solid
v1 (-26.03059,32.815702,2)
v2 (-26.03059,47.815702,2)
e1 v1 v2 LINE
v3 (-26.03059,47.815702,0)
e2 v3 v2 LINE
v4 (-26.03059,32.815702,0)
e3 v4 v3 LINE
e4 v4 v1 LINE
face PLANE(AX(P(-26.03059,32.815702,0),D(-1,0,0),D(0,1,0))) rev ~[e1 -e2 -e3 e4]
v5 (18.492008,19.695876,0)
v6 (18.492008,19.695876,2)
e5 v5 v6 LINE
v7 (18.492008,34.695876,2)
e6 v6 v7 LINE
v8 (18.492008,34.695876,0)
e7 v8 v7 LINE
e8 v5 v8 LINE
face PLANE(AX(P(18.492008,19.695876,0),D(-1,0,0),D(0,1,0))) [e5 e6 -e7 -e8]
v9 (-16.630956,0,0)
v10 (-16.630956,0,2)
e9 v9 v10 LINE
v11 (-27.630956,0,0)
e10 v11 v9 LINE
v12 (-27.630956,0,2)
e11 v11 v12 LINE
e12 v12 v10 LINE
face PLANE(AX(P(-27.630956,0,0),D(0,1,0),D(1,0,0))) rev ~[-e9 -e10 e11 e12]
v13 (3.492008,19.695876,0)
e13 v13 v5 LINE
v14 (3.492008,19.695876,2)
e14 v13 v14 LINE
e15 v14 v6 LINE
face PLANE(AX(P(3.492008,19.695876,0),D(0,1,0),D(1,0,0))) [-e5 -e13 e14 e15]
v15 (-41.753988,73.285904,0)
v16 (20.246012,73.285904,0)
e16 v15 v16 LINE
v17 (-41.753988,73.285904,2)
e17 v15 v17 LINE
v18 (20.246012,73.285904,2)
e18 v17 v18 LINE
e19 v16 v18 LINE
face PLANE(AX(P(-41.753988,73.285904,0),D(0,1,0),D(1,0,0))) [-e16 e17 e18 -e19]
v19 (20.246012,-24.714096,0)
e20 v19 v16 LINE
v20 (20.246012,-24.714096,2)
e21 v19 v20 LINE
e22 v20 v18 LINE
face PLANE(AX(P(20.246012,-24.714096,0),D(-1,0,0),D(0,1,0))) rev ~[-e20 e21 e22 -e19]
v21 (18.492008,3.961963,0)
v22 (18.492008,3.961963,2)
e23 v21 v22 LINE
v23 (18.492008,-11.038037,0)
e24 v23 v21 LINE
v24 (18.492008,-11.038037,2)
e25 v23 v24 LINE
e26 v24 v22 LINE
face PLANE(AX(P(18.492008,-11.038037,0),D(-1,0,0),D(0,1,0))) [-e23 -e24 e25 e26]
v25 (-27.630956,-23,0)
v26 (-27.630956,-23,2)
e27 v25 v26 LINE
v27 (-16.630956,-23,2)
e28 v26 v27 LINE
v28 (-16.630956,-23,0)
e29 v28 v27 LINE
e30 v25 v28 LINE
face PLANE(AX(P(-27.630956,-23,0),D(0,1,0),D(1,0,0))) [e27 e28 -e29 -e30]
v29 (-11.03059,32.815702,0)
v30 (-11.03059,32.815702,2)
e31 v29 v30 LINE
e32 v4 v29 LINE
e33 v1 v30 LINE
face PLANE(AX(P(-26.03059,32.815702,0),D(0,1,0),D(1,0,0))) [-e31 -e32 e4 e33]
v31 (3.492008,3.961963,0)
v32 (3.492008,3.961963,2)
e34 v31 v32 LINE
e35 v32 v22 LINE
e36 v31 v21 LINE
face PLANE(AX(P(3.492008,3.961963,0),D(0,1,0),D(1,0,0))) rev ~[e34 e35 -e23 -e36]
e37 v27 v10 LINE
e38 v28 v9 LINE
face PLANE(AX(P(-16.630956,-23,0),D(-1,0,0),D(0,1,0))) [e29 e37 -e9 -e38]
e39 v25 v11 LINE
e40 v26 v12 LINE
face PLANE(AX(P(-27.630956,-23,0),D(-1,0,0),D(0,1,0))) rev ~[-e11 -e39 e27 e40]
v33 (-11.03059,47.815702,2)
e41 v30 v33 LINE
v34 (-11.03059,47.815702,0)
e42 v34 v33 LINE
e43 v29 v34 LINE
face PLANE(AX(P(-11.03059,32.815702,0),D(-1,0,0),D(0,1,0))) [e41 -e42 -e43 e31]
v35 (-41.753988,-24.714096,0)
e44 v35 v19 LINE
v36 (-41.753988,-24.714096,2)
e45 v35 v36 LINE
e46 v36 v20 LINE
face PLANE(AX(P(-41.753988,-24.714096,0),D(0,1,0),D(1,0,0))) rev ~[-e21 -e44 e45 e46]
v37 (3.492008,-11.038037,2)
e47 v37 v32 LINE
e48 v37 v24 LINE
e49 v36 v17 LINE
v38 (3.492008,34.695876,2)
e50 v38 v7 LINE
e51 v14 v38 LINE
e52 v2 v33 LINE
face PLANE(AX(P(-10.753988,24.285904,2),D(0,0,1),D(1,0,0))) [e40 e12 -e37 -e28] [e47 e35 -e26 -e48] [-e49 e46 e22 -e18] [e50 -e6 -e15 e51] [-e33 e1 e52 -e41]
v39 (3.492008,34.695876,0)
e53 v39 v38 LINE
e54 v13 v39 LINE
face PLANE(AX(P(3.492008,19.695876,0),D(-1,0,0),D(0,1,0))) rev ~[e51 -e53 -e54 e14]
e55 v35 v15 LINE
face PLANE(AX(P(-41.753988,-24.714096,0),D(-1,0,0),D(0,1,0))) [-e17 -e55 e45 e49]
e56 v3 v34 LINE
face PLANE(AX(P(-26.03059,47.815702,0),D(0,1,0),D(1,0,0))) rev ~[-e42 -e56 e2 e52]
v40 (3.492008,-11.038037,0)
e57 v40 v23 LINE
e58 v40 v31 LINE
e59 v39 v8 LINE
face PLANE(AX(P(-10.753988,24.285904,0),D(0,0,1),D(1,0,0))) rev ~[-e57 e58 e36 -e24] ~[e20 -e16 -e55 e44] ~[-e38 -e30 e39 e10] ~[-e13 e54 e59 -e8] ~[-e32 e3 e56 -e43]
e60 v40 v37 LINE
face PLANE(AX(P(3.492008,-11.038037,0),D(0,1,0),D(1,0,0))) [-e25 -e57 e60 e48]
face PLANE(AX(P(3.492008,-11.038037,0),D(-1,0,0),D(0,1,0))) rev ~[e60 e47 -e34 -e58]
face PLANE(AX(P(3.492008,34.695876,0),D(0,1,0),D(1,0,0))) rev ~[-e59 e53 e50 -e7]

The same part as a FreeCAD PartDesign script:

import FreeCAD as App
import Part
import Sketcher

V = App.Vector

doc = App.newDocument("Part")
body = doc.addObject("PartDesign::Body", "Body")

sketch1 = body.newObject("Sketcher::SketchObject", "Sketch")
sketch1.AttachmentSupport = (doc.getObject("XY_Plane"), [""])
sketch1.MapMode = "FlatFace"
sketch1.addGeometry(Part.LineSegment(V(-42, 73, 0), V(-42, -25, 0)), False)
sketch1.addGeometry(Part.LineSegment(V(-42, -25, 0), V(20, -25, 0)), False)
sketch1.addGeometry(Part.LineSegment(V(20, -25, 0), V(20, 73, 0)), False)
sketch1.addGeometry(Part.LineSegment(V(20, 73, 0), V(-42, 73, 0)), False)
sketch1.addGeometry(Part.LineSegment(V(-17, -23, 0), V(-28, -23, 0)), False)
sketch1.addGeometry(Part.LineSegment(V(-28, -23, 0), V(-28, 0, 0)), False)
sketch1.addGeometry(Part.LineSegment(V(-28, 0, 0), V(-17, 0, 0)), False)
sketch1.addGeometry(Part.LineSegment(V(-17, 0, 0), V(-17, -23, 0)), False)
sketch1.addGeometry(Part.LineSegment(V(18, -11, 0), V(3, -11, 0)), False)
sketch1.addGeometry(Part.LineSegment(V(3, -11, 0), V(3, 4, 0)), False)
sketch1.addGeometry(Part.LineSegment(V(3, 4, 0), V(18, 4, 0)), False)
sketch1.addGeometry(Part.LineSegment(V(18, 4, 0), V(18, -11, 0)), False)
sketch1.addGeometry(Part.LineSegment(V(-11, 33, 0), V(-26, 33, 0)), False)
sketch1.addGeometry(Part.LineSegment(V(-26, 33, 0), V(-26, 48, 0)), False)
sketch1.addGeometry(Part.LineSegment(V(-26, 48, 0), V(-11, 48, 0)), False)
sketch1.addGeometry(Part.LineSegment(V(-11, 48, 0), V(-11, 33, 0)), False)
sketch1.addGeometry(Part.LineSegment(V(18, 20, 0), V(3, 20, 0)), False)
sketch1.addGeometry(Part.LineSegment(V(3, 20, 0), V(3, 35, 0)), False)
sketch1.addGeometry(Part.LineSegment(V(3, 35, 0), V(18, 35, 0)), False)
sketch1.addGeometry(Part.LineSegment(V(18, 35, 0), V(18, 20, 0)), False)
sketch1.addConstraint(Sketcher.Constraint("Coincident", 0, 2, 1, 1))
sketch1.addConstraint(Sketcher.Constraint("Coincident", 1, 2, 2, 1))
sketch1.addConstraint(Sketcher.Constraint("Coincident", 2, 2, 3, 1))
sketch1.addConstraint(Sketcher.Constraint("Coincident", 3, 2, 0, 1))
sketch1.addConstraint(Sketcher.Constraint("Coincident", 4, 2, 5, 1))
sketch1.addConstraint(Sketcher.Constraint("Coincident", 5, 2, 6, 1))
sketch1.addConstraint(Sketcher.Constraint("Coincident", 6, 2, 7, 1))
sketch1.addConstraint(Sketcher.Constraint("Coincident", 7, 2, 4, 1))
sketch1.addConstraint(Sketcher.Constraint("Coincident", 8, 2, 9, 1))
sketch1.addConstraint(Sketcher.Constraint("Coincident", 9, 2, 10, 1))
sketch1.addConstraint(Sketcher.Constraint("Coincident", 10, 2, 11, 1))
sketch1.addConstraint(Sketcher.Constraint("Coincident", 11, 2, 8, 1))
sketch1.addConstraint(Sketcher.Constraint("Coincident", 12, 2, 13, 1))
sketch1.addConstraint(Sketcher.Constraint("Coincident", 13, 2, 14, 1))
sketch1.addConstraint(Sketcher.Constraint("Coincident", 14, 2, 15, 1))
sketch1.addConstraint(Sketcher.Constraint("Coincident", 15, 2, 12, 1))
sketch1.addConstraint(Sketcher.Constraint("Coincident", 16, 2, 17, 1))
sketch1.addConstraint(Sketcher.Constraint("Coincident", 17, 2, 18, 1))
sketch1.addConstraint(Sketcher.Constraint("Coincident", 18, 2, 19, 1))
sketch1.addConstraint(Sketcher.Constraint("Coincident", 19, 2, 16, 1))
sketch1.addConstraint(Sketcher.Constraint("Vertical", 0))
sketch1.addConstraint(Sketcher.Constraint("Horizontal", 1))
sketch1.addConstraint(Sketcher.Constraint("Vertical", 2))
sketch1.addConstraint(Sketcher.Constraint("Horizontal", 3))
sketch1.addConstraint(Sketcher.Constraint("Horizontal", 4))
sketch1.addConstraint(Sketcher.Constraint("Vertical", 5))
sketch1.addConstraint(Sketcher.Constraint("Horizontal", 6))
sketch1.addConstraint(Sketcher.Constraint("Vertical", 7))
sketch1.addConstraint(Sketcher.Constraint("Horizontal", 8))
sketch1.addConstraint(Sketcher.Constraint("Vertical", 9))
sketch1.addConstraint(Sketcher.Constraint("Horizontal", 10))
sketch1.addConstraint(Sketcher.Constraint("Vertical", 11))
sketch1.addConstraint(Sketcher.Constraint("Horizontal", 12))
sketch1.addConstraint(Sketcher.Constraint("Vertical", 13))
sketch1.addConstraint(Sketcher.Constraint("Horizontal", 14))
sketch1.addConstraint(Sketcher.Constraint("Vertical", 15))
sketch1.addConstraint(Sketcher.Constraint("Horizontal", 16))
sketch1.addConstraint(Sketcher.Constraint("Vertical", 17))
sketch1.addConstraint(Sketcher.Constraint("Horizontal", 18))
sketch1.addConstraint(Sketcher.Constraint("Vertical", 19))
sketch1.addConstraint(Sketcher.Constraint("PointOnObject", 5, 2, -1))
sketch1.addConstraint(Sketcher.Constraint("Vertical", 9, 2, 16, 2))
sketch1.addConstraint(Sketcher.Constraint("Vertical", 11, 2, 18, 2))
sketch1.addConstraint(Sketcher.Constraint("Equal", 10, 12))
sketch1.addConstraint(Sketcher.Constraint("Equal", 18, 9))
sketch1.addConstraint(Sketcher.Constraint("Equal", 11, 13))
sketch1.addConstraint(Sketcher.Constraint("Equal", 15, 17))
sketch1.addConstraint(Sketcher.Constraint("DistanceX", 1, 1, 1, 2, 62.0))
sketch1.addConstraint(Sketcher.Constraint("DistanceX", 4, 2, 4, 1, 11.0))
sketch1.addConstraint(Sketcher.Constraint("DistanceX", 8, 2, 8, 1, 15.0))
sketch1.addConstraint(Sketcher.Constraint("DistanceY", 0, 2, 0, 1, 98.0))
sketch1.addConstraint(Sketcher.Constraint("DistanceY", 5, 1, 5, 2, 23.0))
sketch1.addConstraint(Sketcher.Constraint("DistanceX", 13, 2, 2, 2, 46.276602))
sketch1.addConstraint(Sketcher.Constraint("DistanceX", 12, 2, -1, 1, 26.03059))
sketch1.addConstraint(Sketcher.Constraint("DistanceX", 0, 2, 4, 2, 14.123032))
sketch1.addConstraint(Sketcher.Constraint("DistanceY", 1, 2, 8, 2, 13.676059))
sketch1.addConstraint(Sketcher.Constraint("DistanceY", 9, 2, 12, 2, 28.853739))
sketch1.addConstraint(Sketcher.Constraint("DistanceY", 0, 2, -1, 1, 24.714096))
sketch1.addConstraint(Sketcher.Constraint("DistanceX", -1, 1, 8, 2, 3.492008))
sketch1.addConstraint(Sketcher.Constraint("DistanceY", -1, 1, 16, 2, 19.695876))
pad1 = body.newObject("PartDesign::Pad", "Pad")
pad1.Profile = sketch1
pad1.Length = 2

doc.recompute()
